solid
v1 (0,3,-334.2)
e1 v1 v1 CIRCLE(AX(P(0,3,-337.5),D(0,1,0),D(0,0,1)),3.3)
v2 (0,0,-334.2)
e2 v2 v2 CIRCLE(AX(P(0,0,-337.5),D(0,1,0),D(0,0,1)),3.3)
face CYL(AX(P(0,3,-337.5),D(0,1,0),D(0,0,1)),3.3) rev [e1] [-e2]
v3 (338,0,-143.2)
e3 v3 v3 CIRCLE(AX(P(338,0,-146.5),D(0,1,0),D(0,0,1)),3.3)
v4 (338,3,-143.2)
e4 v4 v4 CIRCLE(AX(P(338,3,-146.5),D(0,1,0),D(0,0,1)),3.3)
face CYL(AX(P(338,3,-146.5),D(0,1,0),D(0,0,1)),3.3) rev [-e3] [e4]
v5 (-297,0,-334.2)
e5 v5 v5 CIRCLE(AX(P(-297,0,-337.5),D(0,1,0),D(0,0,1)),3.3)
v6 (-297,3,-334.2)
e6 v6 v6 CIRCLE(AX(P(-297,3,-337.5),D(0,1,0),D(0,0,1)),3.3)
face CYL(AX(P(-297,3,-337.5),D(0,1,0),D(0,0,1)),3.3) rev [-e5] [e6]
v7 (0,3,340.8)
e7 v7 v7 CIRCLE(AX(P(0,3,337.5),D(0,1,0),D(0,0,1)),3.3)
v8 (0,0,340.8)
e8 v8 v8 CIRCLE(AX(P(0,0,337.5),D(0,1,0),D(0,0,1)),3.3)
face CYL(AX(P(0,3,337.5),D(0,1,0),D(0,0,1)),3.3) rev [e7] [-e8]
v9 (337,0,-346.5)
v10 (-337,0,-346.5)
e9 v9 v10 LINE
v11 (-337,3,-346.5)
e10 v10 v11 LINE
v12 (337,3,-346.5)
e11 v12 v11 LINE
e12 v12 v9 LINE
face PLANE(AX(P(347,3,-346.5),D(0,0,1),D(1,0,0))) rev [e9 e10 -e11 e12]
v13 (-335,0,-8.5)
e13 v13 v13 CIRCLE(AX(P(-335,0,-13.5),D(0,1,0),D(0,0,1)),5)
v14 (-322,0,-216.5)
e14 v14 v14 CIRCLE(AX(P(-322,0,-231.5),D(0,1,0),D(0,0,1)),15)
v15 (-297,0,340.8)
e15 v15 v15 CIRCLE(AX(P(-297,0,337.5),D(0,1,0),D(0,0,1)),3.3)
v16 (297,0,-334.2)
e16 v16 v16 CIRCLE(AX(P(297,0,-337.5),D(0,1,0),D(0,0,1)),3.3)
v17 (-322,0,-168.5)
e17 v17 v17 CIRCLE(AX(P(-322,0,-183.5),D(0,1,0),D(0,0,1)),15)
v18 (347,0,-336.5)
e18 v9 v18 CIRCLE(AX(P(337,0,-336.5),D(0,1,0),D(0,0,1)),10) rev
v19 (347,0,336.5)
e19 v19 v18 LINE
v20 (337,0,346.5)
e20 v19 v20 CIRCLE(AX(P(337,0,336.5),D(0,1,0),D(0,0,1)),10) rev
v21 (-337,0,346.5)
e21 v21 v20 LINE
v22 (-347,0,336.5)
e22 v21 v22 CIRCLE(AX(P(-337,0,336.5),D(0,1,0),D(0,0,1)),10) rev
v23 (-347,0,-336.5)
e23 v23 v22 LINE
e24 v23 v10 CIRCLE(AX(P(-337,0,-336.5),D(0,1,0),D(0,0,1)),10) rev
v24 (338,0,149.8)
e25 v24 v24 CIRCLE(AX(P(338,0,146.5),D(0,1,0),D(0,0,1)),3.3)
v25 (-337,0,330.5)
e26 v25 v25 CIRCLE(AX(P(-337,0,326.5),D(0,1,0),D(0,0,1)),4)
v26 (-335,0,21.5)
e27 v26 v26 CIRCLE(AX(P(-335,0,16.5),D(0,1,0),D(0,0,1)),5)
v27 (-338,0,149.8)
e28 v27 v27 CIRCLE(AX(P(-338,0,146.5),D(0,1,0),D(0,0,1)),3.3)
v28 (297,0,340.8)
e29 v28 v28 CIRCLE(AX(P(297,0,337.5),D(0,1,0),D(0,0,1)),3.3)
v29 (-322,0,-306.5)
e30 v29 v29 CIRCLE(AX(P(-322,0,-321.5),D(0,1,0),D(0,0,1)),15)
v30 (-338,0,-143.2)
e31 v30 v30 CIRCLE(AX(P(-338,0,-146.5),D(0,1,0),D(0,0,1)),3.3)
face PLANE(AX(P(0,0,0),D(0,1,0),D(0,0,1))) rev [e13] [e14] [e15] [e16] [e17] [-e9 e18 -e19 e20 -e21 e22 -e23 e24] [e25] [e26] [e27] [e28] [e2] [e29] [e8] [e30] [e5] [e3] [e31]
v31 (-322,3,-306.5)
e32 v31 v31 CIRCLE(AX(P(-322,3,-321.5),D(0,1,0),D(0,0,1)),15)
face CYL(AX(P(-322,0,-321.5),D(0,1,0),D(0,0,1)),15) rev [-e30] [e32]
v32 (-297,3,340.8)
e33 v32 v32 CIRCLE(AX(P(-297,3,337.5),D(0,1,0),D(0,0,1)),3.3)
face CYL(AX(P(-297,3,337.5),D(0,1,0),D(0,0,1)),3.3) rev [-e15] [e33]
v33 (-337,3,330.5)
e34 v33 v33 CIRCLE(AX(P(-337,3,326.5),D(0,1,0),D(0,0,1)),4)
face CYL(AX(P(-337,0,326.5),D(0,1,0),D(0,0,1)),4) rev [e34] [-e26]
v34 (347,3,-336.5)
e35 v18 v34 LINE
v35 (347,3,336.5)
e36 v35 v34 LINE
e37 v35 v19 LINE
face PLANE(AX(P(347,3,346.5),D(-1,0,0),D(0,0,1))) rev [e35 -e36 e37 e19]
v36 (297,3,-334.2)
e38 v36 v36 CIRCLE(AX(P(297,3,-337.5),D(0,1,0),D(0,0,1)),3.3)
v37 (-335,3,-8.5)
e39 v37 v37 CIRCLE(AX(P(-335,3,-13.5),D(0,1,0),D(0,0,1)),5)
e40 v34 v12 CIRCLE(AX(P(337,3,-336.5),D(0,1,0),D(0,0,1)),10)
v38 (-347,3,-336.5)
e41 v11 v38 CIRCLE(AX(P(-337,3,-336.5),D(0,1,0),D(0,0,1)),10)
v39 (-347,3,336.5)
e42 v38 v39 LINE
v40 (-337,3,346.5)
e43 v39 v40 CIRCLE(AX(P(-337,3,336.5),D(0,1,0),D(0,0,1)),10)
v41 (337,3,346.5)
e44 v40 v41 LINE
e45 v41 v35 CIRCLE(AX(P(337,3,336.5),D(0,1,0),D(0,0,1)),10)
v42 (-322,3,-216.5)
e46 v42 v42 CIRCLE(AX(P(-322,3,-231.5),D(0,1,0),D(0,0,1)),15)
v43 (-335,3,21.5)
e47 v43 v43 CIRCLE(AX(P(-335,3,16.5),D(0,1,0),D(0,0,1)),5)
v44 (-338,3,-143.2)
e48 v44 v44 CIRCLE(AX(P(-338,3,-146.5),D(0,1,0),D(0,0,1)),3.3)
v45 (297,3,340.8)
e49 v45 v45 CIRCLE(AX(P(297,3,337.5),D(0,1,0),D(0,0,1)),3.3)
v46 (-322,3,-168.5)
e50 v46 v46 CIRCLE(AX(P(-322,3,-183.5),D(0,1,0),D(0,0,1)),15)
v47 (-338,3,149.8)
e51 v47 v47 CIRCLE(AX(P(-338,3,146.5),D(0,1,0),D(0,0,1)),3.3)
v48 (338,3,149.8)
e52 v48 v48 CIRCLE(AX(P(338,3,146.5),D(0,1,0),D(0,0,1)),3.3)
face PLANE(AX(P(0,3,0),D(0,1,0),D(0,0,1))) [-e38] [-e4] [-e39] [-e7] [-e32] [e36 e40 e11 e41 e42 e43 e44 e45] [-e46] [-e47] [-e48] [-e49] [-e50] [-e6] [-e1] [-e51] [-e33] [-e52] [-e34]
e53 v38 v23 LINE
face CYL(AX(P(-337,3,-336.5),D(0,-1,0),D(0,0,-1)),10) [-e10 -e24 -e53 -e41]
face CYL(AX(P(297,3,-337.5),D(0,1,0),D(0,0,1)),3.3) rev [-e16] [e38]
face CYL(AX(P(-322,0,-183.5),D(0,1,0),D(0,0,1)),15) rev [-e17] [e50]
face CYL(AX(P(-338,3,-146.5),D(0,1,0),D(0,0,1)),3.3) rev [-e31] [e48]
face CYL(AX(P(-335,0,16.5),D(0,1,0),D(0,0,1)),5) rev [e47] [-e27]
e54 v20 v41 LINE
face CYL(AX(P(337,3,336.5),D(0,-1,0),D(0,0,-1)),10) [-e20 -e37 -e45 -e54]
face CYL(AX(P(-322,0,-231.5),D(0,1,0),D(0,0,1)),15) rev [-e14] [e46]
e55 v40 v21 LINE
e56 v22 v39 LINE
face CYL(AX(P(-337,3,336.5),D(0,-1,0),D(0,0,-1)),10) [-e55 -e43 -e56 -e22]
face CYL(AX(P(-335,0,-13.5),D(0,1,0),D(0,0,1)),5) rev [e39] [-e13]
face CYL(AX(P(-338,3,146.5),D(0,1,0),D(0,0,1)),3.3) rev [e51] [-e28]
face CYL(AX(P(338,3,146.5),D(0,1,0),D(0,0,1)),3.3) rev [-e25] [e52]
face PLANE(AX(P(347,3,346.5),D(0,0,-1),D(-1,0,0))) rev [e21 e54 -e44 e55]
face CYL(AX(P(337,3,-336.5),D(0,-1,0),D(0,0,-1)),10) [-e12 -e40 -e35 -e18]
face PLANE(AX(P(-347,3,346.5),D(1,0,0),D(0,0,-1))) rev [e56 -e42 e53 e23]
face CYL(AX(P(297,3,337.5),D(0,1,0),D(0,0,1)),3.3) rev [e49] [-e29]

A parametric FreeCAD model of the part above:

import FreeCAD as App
import Part
import Sketcher
Q = App.Units.Quantity


def edges_at(feature, points):
    """Names of the edges that pass closest to the given points."""
    edges = feature.Shape.Edges
    near = lambda p: min(range(len(edges)), key=lambda i: edges[i].distToShape(Part.Vertex(*p))[0])
    return sorted({f"Edge{near(p) + 1}" for p in points})


def add_polygon(sketch, points):
    """Adds a closed chain of lines whose ends are joined by coincident constraints."""
    first, n = sketch.GeometryCount, len(points)
    for a, b in zip(points, points[1:] + points[:1]):
        sketch.addGeometry(Part.LineSegment(App.Vector(*a, 0), App.Vector(*b, 0)), False)
    for i in range(n):
        sketch.addConstraint(Sketcher.Constraint("Coincident", first + i, 2, first + (i + 1) % n, 1))

doc = App.newDocument("Part")
body = doc.addObject("PartDesign::Body", "Body")

# Sketch on XZ plane
sketch1 = body.newObject("Sketcher::SketchObject", "Sketch")
sketch1.AttachmentSupport = (doc.getObject("XZ_Plane"), [""])
sketch1.MapMode = "FlatFace"
add_polygon(sketch1, [(-347, -346), (-347, 346), (347, 346), (347, -346)])  # lines 0-3
sketch1.addConstraint(Sketcher.Constraint("Vertical", 0))
sketch1.addConstraint(Sketcher.Constraint("Horizontal", 1))
sketch1.addConstraint(Sketcher.Constraint("Vertical", 2))
sketch1.addConstraint(Sketcher.Constraint("Horizontal", 3))
sketch1.addConstraint(Sketcher.Constraint("Symmetric", 0, 2, 2, 2, -1, 1))
sketch1.addConstraint(Sketcher.Constraint("DistanceX", 1, 1, 1, 2, Q("694 mm")))
sketch1.addConstraint(Sketcher.Constraint("DistanceY", 0, 1, 0, 2, Q("693 mm")))
pad1 = body.newObject("PartDesign::Pad", "Pad")
pad1.Profile = sketch1
pad1.Length = 3
pad1.Reversed = True

# Sketch on XZ plane
sketch2 = body.newObject("Sketcher::SketchObject", "Sketch001")
sketch2.AttachmentSupport = (doc.getObject("XZ_Plane"), [""])
sketch2.MapMode = "FlatFace"
sketch2.AttachmentOffset = App.Placement(App.Vector(0, 0, -3), App.Rotation())
sketch2.addGeometry(Part.Circle(App.Vector(297, 337.5, 0), App.Vector(0, 0, 1), 3.3), False)
sketch2.addConstraint(Sketcher.Constraint("Diameter", 0, Q("6.6 mm")))
sketch2.addConstraint(Sketcher.Constraint("DistanceX", -1, 1, 0, 3, Q("297 mm")))
sketch2.addConstraint(Sketcher.Constraint("DistanceY", -1, 1, 0, 3, Q("337.5 mm")))
doc.recompute()
hole = body.newObject("PartDesign::Hole", "Hole")
hole.Profile = sketch2
hole.ThreadType = "None"
hole.Diameter = 6.6
hole.DepthType = "ThroughAll"
hole.Reversed = True
doc.recompute()

linearpattern = body.newObject("PartDesign::LinearPattern", "LinearPattern")
linearpattern.Originals = [hole]
linearpattern.Direction = (doc.getObject("X_Axis"), [""])
linearpattern.Mode = "offset"
linearpattern.Offset = 297
linearpattern.Occurrences = 3
linearpattern.Reversed = True
body.Tip = linearpattern
doc.recompute()

mirrored = body.newObject("PartDesign::Mirrored", "Mirrored")
mirrored.Originals = [hole]
mirrored.MirrorPlane = (doc.getObject("XY_Plane"), [""])
body.Tip = mirrored

# Sketch on XZ plane
sketch3 = body.newObject("Sketcher::SketchObject", "Sketch002")
sketch3.AttachmentSupport = (doc.getObject("XZ_Plane"), [""])
sketch3.MapMode = "FlatFace"
sketch3.AttachmentOffset = App.Placement(App.Vector(0, 0, -3), App.Rotation())
sketch3.addGeometry(Part.Circle(App.Vector(0, -337.5, 0), App.Vector(0, 0, 1), 3.3), False)
sketch3.addConstraint(Sketcher.Constraint("PointOnObject", 0, 3, -2))
sketch3.addConstraint(Sketcher.Constraint("Diameter", 0, Q("6.6 mm")))
sketch3.addConstraint(Sketcher.Constraint("DistanceY", 0, 3, -1, 1, Q("337.5 mm")))
doc.recompute()
hole2 = body.newObject("PartDesign::Hole", "Hole001")
hole2.Profile = sketch3
hole2.ThreadType = "None"
hole2.Diameter = 6.6
hole2.DepthType = "ThroughAll"
hole2.Reversed = True

# Sketch on XZ plane
sketch4 = body.newObject("Sketcher::SketchObject", "Sketch003")
sketch4.AttachmentSupport = (doc.getObject("XZ_Plane"), [""])
sketch4.MapMode = "FlatFace"
sketch4.AttachmentOffset = App.Placement(App.Vector(0, 0, -3), App.Rotation())
sketch4.addGeometry(Part.Circle(App.Vector(-297, -337.5, 0), App.Vector(0, 0, 1), 3.3), False)
sketch4.addConstraint(Sketcher.Constraint("Diameter", 0, Q("6.6 mm")))
sketch4.addConstraint(Sketcher.Constraint("DistanceX", 0, 3, -1, 1, Q("297 mm")))
sketch4.addConstraint(Sketcher.Constraint("DistanceY", 0, 3, -1, 1, Q("337.5 mm")))
doc.recompute()
hole3 = body.newObject("PartDesign::Hole", "Hole002")
hole3.Profile = sketch4
hole3.ThreadType = "None"
hole3.Diameter = 6.6
hole3.DepthType = "ThroughAll"
hole3.Reversed = True

# Sketch on XZ plane
sketch5 = body.newObject("Sketcher::SketchObject", "Sketch004")
sketch5.AttachmentSupport = (doc.getObject("XZ_Plane"), [""])
sketch5.MapMode = "FlatFace"
sketch5.AttachmentOffset = App.Placement(App.Vector(0, 0, -3), App.Rotation())
sketch5.addGeometry(Part.Circle(App.Vector(338, 146.5, 0), App.Vector(0, 0, 1), 3.3), False)
sketch5.addConstraint(Sketcher.Constraint("Diameter", 0, Q("6.6 mm")))
sketch5.addConstraint(Sketcher.Constraint("DistanceX", -1, 1, 0, 3, Q("338 mm")))
sketch5.addConstraint(Sketcher.Constraint("DistanceY", -1, 1, 0, 3, Q("146.5 mm")))
doc.recompute()
hole4 = body.newObject("PartDesign::Hole", "Hole003")
hole4.Profile = sketch5
hole4.ThreadType = "None"
hole4.Diameter = 6.6
hole4.DepthType = "ThroughAll"
hole4.Reversed = True
doc.recompute()

linearpattern2 = body.newObject("PartDesign::LinearPattern", "LinearPattern001")
linearpattern2.Originals = [hole4]
linearpattern2.Direction = (doc.getObject("Z_Axis"), [""])
linearpattern2.Mode = "offset"
linearpattern2.Offset = 293
linearpattern2.Occurrences = 2
linearpattern2.Reversed = True
body.Tip = linearpattern2
doc.recompute()

mirrored2 = body.newObject("PartDesign::Mirrored", "Mirrored001")
mirrored2.Originals = [hole4]
mirrored2.MirrorPlane = (doc.getObject("YZ_Plane"), [""])
body.Tip = mirrored2

# Sketch on XZ plane
sketch6 = body.newObject("Sketcher::SketchObject", "Sketch005")
sketch6.AttachmentSupport = (doc.getObject("XZ_Plane"), [""])
sketch6.MapMode = "FlatFace"
sketch6.AttachmentOffset = App.Placement(App.Vector(0, 0, -3), App.Rotation())
sketch6.addGeometry(Part.Circle(App.Vector(-338, -146.5, 0), App.Vector(0, 0, 1), 3.3), False)
sketch6.addConstraint(Sketcher.Constraint("Diameter", 0, Q("6.6 mm")))
sketch6.addConstraint(Sketcher.Constraint("DistanceX", 0, 3, -1, 1, Q("338 mm")))
sketch6.addConstraint(Sketcher.Constraint("DistanceY", 0, 3, -1, 1, Q("146.5 mm")))
doc.recompute()
hole5 = body.newObject("PartDesign::Hole", "Hole004")
hole5.Profile = sketch6
hole5.ThreadType = "None"
hole5.Diameter = 6.6
hole5.DepthType = "ThroughAll"
hole5.Reversed = True
doc.recompute()

fillet = body.newObject("PartDesign::Fillet", "Fillet")
fillet.Base = (hole5, edges_at(hole5, [
    (-347, 1.5, -346.5),
    (347, 1.5, -346.5),
    (347, 1.5, 346.5),
    (-347, 1.5, 346.5),
]))
fillet.Radius = 10

# Sketch on XZ plane
sketch7 = body.newObject("Sketcher::SketchObject", "Sketch006")
sketch7.AttachmentSupport = (doc.getObject("XZ_Plane"), [""])
sketch7.MapMode = "FlatFace"
sketch7.AttachmentOffset = App.Placement(App.Vector(0, 0, -3), App.Rotation())
sketch7.addGeometry(Part.Circle(App.Vector(-337, 326.5, 0), App.Vector(0, 0, 1), 4), False)
sketch7.addGeometry(Part.Circle(App.Vector(-335, 16.5, 0), App.Vector(0, 0, 1), 5), False)
sketch7.addGeometry(Part.Circle(App.Vector(-335, -13.5, 0), App.Vector(0, 0, 1), 5), False)
sketch7.addGeometry(Part.Circle(App.Vector(-322, -183.5, 0), App.Vector(0, 0, 1), 15), False)
sketch7.addGeometry(Part.Circle(App.Vector(-322, -231.5, 0), App.Vector(0, 0, 1), 15), False)
sketch7.addGeometry(Part.Circle(App.Vector(-322, -321.5, 0), App.Vector(0, 0, 1), 15), False)
sketch7.addConstraint(Sketcher.Constraint("Equal", 1, 2))
sketch7.addConstraint(Sketcher.Constraint("Equal", 3, 4))
sketch7.addConstraint(Sketcher.Constraint("Equal", 4, 5))
sketch7.addConstraint(Sketcher.Constraint("Vertical", 1, 3, 2, 3))
sketch7.addConstraint(Sketcher.Constraint("Vertical", 3, 3, 4, 3))
sketch7.addConstraint(Sketcher.Constraint("Vertical", 4, 3, 5, 3))
sketch7.addConstraint(Sketcher.Constraint("Diameter", 0, Q("8 mm")))
sketch7.addConstraint(Sketcher.Constraint("Diameter", 1, Q("10 mm")))
sketch7.addConstraint(Sketcher.Constraint("Diameter", 3, Q("30 mm")))
sketch7.addConstraint(Sketcher.Constraint("DistanceX", 0, 3, -1, 1, Q("337 mm")))
sketch7.addConstraint(Sketcher.Constraint("DistanceX", 1, 3, -1, 1, Q("335 mm")))
sketch7.addConstraint(Sketcher.Constraint("DistanceX", 3, 3, -1, 1, Q("322 mm")))
sketch7.addConstraint(Sketcher.Constraint("DistanceY", 1, 3, 0, 3, Q("310 mm")))
sketch7.addConstraint(Sketcher.Constraint("DistanceY", 2, 3, 1, 3, Q("30 mm")))
sketch7.addConstraint(Sketcher.Constraint("DistanceY", 3, 3, 2, 3, Q("170 mm")))
sketch7.addConstraint(Sketcher.Constraint("DistanceY", 4, 3, 3, 3, Q("48 mm")))
sketch7.addConstraint(Sketcher.Constraint("DistanceY", 5, 3, 4, 3, Q("90 mm")))
sketch7.addConstraint(Sketcher.Constraint("DistanceY", -1, 1, 0, 3, Q("326.5 mm")))
pocket1 = body.newObject("PartDesign::Pocket", "Pocket")
pocket1.Profile = sketch7
pocket1.Type = "ThroughAll"
pocket1.Reversed = True

doc.recompute()
